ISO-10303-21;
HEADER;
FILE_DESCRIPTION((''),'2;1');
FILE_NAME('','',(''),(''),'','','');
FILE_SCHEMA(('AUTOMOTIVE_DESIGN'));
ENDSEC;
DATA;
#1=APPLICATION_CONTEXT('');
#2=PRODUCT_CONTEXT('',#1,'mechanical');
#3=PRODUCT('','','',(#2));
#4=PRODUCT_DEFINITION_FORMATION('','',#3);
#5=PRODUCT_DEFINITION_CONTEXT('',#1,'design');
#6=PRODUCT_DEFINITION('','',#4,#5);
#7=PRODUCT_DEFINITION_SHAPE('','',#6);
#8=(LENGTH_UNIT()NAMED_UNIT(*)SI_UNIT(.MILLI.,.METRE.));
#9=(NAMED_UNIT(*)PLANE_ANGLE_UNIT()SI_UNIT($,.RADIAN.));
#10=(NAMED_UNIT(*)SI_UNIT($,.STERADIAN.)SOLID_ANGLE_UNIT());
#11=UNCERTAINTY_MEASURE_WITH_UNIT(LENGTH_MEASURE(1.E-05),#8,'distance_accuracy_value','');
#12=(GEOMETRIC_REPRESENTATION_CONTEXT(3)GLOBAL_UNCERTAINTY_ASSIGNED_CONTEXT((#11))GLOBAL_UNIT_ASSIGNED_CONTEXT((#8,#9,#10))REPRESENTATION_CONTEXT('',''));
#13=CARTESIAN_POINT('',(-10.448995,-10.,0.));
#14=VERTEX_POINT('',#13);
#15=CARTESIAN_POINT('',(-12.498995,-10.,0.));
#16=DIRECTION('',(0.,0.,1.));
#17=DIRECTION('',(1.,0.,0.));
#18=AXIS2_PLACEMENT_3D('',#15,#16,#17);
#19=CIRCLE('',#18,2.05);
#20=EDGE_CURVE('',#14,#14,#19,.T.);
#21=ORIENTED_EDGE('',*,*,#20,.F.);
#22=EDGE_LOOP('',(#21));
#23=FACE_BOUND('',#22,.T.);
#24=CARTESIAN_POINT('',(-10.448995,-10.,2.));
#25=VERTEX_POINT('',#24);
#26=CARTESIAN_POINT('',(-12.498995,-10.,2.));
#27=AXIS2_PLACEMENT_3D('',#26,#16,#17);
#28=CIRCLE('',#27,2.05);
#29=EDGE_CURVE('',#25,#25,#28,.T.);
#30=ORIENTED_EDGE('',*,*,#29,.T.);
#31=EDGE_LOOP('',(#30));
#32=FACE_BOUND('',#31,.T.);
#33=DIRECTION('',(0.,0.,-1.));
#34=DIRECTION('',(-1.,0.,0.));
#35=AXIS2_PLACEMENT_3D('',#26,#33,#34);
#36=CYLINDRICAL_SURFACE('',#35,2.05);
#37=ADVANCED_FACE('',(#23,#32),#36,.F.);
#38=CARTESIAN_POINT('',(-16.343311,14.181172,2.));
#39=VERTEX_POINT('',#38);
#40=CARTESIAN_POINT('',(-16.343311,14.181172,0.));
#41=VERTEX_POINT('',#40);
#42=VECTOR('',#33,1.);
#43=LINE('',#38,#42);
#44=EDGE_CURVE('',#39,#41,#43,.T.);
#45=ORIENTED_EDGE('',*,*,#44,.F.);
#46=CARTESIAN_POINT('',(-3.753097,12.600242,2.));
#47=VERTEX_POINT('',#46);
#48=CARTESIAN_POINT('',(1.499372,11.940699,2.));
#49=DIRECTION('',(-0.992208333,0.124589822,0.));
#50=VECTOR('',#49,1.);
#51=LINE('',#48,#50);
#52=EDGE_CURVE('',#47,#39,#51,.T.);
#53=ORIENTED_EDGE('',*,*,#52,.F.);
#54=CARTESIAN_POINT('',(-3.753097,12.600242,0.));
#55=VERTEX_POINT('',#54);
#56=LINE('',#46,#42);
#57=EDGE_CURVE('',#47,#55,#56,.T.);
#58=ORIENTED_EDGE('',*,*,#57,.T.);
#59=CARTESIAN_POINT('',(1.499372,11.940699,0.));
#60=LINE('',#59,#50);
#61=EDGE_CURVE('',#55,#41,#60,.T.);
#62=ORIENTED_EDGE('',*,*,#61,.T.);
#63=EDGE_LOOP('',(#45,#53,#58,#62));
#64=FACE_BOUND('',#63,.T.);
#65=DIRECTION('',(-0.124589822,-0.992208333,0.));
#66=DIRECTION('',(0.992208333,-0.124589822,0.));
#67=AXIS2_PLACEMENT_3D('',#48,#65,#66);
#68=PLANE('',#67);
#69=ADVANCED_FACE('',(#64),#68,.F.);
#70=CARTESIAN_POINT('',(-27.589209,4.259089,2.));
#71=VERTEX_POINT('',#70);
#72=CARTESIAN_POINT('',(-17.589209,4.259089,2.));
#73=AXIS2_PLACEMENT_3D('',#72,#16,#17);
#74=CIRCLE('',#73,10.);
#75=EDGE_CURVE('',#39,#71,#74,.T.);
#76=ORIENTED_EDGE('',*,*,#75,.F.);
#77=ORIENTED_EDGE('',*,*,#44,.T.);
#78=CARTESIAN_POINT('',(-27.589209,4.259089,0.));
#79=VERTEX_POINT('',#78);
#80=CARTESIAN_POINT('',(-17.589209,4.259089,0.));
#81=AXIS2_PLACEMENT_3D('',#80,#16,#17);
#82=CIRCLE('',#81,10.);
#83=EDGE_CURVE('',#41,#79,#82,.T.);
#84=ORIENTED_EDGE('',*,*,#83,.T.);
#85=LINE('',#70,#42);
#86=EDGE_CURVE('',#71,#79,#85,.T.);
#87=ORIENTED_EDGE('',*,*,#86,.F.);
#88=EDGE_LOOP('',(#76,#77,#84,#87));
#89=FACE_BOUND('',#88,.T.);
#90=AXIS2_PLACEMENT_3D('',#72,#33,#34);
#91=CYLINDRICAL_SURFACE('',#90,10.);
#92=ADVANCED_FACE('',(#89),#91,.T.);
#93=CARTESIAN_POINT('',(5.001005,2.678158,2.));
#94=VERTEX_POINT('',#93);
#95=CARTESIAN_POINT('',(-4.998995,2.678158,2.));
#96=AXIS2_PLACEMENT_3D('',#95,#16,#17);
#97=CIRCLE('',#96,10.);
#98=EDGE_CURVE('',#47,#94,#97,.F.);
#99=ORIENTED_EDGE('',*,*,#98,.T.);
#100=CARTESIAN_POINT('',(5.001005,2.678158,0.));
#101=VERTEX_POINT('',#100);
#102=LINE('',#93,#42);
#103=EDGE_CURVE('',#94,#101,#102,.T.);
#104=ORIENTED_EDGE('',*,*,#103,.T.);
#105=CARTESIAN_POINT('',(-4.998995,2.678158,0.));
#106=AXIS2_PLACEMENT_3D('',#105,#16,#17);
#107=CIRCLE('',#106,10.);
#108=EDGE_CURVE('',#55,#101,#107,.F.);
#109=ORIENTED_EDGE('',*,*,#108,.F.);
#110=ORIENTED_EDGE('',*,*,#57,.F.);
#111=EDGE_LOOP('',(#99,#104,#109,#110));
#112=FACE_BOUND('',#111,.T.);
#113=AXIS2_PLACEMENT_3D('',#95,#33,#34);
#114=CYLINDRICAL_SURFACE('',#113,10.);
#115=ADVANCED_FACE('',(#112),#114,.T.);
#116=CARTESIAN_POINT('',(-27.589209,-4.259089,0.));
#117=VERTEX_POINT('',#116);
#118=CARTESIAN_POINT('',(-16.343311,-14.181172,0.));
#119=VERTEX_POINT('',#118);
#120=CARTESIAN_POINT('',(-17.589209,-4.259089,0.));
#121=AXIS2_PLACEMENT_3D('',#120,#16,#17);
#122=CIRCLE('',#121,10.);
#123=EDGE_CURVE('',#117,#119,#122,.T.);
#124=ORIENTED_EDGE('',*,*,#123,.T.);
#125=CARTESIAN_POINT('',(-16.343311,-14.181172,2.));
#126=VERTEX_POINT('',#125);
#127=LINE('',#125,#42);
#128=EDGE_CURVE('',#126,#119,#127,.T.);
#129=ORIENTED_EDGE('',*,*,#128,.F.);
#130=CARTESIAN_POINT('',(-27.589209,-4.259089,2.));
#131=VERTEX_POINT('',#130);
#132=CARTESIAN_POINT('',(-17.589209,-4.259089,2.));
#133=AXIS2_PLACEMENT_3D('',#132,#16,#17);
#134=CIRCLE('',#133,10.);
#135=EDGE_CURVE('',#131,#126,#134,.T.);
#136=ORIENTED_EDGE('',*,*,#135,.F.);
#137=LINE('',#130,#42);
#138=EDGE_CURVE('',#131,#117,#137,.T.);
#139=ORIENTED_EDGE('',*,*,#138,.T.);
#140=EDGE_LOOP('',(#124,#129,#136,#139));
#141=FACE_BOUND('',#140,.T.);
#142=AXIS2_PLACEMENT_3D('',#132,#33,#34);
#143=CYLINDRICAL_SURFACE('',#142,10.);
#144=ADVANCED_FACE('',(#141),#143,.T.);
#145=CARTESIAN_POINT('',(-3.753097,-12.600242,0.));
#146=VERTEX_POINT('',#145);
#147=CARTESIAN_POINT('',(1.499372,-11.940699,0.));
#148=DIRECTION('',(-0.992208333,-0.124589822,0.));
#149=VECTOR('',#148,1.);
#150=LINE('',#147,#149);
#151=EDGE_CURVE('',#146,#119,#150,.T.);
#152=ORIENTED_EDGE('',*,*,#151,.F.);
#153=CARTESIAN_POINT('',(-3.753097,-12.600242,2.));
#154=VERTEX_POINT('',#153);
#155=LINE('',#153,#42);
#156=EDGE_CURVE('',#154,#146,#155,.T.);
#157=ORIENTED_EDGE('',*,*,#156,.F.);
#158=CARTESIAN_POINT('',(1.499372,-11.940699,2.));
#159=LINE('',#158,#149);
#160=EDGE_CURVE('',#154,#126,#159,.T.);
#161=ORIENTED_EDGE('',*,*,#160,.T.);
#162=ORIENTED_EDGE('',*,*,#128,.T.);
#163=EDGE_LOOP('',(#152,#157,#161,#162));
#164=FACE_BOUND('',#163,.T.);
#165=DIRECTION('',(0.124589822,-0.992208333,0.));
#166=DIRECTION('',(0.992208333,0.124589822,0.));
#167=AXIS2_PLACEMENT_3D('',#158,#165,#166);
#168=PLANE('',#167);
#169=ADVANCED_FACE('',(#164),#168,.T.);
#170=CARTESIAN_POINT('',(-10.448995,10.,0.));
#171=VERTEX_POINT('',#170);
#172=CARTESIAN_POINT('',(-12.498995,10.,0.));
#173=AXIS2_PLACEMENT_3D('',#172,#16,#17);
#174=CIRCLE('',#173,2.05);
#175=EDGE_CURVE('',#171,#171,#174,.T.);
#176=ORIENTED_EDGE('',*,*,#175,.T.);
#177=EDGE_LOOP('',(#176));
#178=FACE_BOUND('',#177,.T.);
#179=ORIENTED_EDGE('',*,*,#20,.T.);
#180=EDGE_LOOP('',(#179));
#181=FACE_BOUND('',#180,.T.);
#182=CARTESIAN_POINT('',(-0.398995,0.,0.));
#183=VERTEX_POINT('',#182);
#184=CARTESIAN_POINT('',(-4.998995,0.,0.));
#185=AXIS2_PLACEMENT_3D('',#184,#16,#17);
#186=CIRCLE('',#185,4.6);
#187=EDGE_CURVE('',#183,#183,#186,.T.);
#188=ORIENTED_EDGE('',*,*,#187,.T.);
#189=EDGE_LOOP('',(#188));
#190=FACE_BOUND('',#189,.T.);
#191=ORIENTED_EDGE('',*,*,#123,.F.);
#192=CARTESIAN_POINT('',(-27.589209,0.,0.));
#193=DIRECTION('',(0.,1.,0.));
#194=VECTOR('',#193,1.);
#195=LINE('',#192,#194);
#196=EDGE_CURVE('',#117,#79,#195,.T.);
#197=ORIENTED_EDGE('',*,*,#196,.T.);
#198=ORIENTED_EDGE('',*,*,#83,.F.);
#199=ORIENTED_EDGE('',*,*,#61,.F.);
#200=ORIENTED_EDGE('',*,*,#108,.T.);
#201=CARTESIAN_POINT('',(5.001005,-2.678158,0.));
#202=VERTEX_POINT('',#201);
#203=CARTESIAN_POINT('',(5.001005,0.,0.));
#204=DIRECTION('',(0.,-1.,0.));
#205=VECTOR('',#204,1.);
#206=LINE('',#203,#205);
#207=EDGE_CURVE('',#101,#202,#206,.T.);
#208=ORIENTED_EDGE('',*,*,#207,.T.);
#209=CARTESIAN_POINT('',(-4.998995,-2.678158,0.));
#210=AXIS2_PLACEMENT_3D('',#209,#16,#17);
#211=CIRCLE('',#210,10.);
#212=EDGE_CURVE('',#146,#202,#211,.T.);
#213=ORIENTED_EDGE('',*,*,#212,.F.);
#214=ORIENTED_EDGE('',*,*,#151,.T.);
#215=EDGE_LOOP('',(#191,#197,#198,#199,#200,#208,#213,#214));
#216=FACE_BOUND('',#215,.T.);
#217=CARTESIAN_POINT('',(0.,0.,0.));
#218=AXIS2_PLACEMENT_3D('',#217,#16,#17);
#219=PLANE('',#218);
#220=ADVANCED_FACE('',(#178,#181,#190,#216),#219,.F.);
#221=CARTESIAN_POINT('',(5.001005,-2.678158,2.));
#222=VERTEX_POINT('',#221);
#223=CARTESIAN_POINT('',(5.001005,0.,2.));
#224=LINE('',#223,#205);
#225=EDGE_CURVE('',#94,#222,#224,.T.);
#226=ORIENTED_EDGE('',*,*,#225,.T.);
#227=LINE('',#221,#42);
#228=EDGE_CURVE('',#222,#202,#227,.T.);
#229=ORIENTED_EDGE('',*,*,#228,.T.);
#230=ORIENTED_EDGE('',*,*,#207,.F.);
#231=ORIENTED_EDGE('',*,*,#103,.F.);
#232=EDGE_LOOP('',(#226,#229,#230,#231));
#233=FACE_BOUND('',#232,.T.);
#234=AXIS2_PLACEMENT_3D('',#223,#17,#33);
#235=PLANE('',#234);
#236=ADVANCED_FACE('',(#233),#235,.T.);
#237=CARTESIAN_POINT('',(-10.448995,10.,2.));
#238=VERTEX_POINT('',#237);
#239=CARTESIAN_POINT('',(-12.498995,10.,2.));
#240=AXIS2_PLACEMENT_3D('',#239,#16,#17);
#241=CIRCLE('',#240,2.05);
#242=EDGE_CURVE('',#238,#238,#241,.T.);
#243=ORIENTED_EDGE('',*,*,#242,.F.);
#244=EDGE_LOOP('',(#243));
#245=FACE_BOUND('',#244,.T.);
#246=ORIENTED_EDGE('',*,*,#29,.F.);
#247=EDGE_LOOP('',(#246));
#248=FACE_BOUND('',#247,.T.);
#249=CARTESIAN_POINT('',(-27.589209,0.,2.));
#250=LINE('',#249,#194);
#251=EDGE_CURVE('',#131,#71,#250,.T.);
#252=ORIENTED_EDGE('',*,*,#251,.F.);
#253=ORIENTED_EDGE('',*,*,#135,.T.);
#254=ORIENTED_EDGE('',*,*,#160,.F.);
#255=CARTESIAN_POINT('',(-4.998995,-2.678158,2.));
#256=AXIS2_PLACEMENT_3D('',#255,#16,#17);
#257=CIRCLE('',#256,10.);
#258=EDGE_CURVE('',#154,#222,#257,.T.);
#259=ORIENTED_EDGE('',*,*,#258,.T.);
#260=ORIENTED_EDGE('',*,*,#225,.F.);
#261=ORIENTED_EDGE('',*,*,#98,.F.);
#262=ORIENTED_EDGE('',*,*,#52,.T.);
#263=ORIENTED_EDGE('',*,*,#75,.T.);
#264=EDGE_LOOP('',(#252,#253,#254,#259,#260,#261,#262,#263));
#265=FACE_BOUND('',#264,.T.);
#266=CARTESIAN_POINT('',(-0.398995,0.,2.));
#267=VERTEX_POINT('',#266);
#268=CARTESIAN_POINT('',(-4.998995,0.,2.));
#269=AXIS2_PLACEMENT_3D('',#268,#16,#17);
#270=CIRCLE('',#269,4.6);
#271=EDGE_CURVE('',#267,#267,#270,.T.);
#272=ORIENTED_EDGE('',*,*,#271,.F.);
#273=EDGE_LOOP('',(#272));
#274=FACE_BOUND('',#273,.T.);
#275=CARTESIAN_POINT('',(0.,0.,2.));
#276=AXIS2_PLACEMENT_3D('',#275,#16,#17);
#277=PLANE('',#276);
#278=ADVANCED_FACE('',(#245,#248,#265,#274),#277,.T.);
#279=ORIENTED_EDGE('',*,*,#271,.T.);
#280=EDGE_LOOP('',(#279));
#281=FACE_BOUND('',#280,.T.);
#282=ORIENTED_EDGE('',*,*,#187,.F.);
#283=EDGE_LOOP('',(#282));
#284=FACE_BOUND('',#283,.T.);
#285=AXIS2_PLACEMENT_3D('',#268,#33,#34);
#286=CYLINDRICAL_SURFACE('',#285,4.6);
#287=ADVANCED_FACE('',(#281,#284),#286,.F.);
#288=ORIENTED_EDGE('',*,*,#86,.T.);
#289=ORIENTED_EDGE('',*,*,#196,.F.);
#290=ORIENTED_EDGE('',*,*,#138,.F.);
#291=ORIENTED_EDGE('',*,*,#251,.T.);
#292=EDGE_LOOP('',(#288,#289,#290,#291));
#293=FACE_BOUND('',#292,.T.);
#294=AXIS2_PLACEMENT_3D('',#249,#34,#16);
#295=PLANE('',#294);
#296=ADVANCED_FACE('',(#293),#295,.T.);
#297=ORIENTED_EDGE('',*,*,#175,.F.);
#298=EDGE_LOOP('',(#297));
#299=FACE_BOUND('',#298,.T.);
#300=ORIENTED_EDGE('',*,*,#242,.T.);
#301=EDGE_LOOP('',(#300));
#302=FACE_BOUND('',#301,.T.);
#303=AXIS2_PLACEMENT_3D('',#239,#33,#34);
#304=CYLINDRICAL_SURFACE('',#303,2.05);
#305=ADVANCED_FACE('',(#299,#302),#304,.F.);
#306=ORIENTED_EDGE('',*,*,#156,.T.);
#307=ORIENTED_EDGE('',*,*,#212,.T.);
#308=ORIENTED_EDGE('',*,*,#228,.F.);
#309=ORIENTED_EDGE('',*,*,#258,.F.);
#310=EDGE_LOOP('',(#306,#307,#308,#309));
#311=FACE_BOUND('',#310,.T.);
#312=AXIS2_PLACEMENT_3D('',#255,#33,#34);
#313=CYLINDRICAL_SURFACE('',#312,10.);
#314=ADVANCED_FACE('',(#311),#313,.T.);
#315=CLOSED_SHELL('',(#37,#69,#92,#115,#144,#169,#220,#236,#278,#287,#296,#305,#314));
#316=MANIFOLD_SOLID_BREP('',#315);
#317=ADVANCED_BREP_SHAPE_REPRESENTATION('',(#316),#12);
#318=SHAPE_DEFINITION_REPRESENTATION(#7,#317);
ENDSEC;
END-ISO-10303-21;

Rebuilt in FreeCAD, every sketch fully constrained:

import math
import FreeCAD as App
import Part
import Sketcher

doc = App.newDocument("Part")
params = doc.addObject("Spreadsheet::Sheet", "Params")
for row, (alias, value) in enumerate([
    ("sketch1_radius", "10 mm"),
    ("sketch1_diameter", "4.1 mm"),
    ("sketch1_diameter2", "9.2 mm"),
    ("pad1_length", "2 mm"),
], start=1):
    params.set(f"A{row}", alias)
    params.set(f"B{row}", "=" + value)
    params.setAlias(f"B{row}", alias)

body = doc.addObject("PartDesign::Body", "Body")

sketch1 = body.newObject("Sketcher::SketchObject", "Sketch")
sketch1.AttachmentSupport = (doc.getObject("XY_Plane"), [""])
sketch1.MapMode = "FlatFace"
sketch1.addGeometry([
    Part.LineSegment(App.Vector(-3.8, 12.6, 0), App.Vector(-16.3, 14.2, 0)),
    Part.ArcOfCircle(Part.Circle(App.Vector(-17.6, 4.3, 0), App.Vector(0, 0, 1), 10), math.radians(83), math.radians(180)),
    Part.LineSegment(App.Vector(-27.6, 4.3, 0), App.Vector(-27.6, -4.3, 0)),
    Part.ArcOfCircle(Part.Circle(App.Vector(-17.6, -4.3, 0), App.Vector(0, 0, 1), 10), math.radians(-180), math.radians(-83)),
    Part.LineSegment(App.Vector(-16.3, -14.2, 0), App.Vector(-3.8, -12.6, 0)),
    Part.ArcOfCircle(Part.Circle(App.Vector(-5, -2.7, 0), App.Vector(0, 0, 1), 10), math.radians(-83), math.radians(0)),
    Part.LineSegment(App.Vector(5, -2.7, 0), App.Vector(5, 2.7, 0)),
    Part.ArcOfCircle(Part.Circle(App.Vector(-5, 2.7, 0), App.Vector(0, 0, 1), 10), math.radians(0), math.radians(83)),
    Part.Circle(App.Vector(-12.5, -10, 0), App.Vector(0, 0, 1), 2),
    Part.Circle(App.Vector(-12.5, 10, 0), App.Vector(0, 0, 1), 2),
    Part.Circle(App.Vector(-5, 0, 0), App.Vector(0, 0, 1), 4.6),
], False)
sketch1.addConstraint([
    Sketcher.Constraint("Tangent", 0, 2, 1, 1),
    Sketcher.Constraint("Tangent", 1, 2, 2, 1),
    Sketcher.Constraint("Tangent", 2, 2, 3, 1),
    Sketcher.Constraint("Tangent", 3, 2, 4, 1),
    Sketcher.Constraint("Tangent", 4, 2, 5, 1),
    Sketcher.Constraint("Tangent", 5, 2, 6, 1),
    Sketcher.Constraint("Tangent", 6, 2, 7, 1),
    Sketcher.Constraint("Tangent", 7, 2, 0, 1),
    Sketcher.Constraint("Vertical", 2),
    Sketcher.Constraint("Vertical", 6),
    Sketcher.Constraint("Equal", 1, 3),
    Sketcher.Constraint("Equal", 3, 5),
    Sketcher.Constraint("Equal", 5, 7),
    Sketcher.Constraint("Equal", 8, 9),
    Sketcher.Constraint("Symmetric", 8, 3, 9, 3, -1),
    Sketcher.Constraint("Symmetric", 0, 2, 3, 2, -1),
    Sketcher.Constraint("PointOnObject", 10, 3, -1),
    Sketcher.Constraint("Vertical", 7, 3, 10, 3),
    Sketcher.Constraint("Radius", 1, 10.0),
    Sketcher.Constraint("Diameter", 8, 4.1),
    Sketcher.Constraint("Diameter", 10, 9.2),
    Sketcher.Constraint("DistanceY", 8, 3, -1, 1, 10.0),
    Sketcher.Constraint("DistanceX", 8, 3, 5, 3, 7.5),
    Sketcher.Constraint("DistanceX", 1, 3, 0, 2, 1.245898),
    Sketcher.Constraint("DistanceY", 4, 2, 7, 3, 15.2784),
    Sketcher.Constraint("DistanceY", 2, 2, 2, 1, 8.518178),
    Sketcher.Constraint("DistanceX", 1, 3, -1, 1, 17.589209),
])
sketch1.setExpression("Constraints[18]", "Params.sketch1_radius")
sketch1.setExpression("Constraints[19]", "Params.sketch1_diameter")
sketch1.setExpression("Constraints[20]", "Params.sketch1_diameter2")
pad1 = body.newObject("PartDesign::Pad", "Pad")
pad1.Profile = sketch1
pad1.setExpression("Length", "Params.pad1_length")

doc.recompute()
